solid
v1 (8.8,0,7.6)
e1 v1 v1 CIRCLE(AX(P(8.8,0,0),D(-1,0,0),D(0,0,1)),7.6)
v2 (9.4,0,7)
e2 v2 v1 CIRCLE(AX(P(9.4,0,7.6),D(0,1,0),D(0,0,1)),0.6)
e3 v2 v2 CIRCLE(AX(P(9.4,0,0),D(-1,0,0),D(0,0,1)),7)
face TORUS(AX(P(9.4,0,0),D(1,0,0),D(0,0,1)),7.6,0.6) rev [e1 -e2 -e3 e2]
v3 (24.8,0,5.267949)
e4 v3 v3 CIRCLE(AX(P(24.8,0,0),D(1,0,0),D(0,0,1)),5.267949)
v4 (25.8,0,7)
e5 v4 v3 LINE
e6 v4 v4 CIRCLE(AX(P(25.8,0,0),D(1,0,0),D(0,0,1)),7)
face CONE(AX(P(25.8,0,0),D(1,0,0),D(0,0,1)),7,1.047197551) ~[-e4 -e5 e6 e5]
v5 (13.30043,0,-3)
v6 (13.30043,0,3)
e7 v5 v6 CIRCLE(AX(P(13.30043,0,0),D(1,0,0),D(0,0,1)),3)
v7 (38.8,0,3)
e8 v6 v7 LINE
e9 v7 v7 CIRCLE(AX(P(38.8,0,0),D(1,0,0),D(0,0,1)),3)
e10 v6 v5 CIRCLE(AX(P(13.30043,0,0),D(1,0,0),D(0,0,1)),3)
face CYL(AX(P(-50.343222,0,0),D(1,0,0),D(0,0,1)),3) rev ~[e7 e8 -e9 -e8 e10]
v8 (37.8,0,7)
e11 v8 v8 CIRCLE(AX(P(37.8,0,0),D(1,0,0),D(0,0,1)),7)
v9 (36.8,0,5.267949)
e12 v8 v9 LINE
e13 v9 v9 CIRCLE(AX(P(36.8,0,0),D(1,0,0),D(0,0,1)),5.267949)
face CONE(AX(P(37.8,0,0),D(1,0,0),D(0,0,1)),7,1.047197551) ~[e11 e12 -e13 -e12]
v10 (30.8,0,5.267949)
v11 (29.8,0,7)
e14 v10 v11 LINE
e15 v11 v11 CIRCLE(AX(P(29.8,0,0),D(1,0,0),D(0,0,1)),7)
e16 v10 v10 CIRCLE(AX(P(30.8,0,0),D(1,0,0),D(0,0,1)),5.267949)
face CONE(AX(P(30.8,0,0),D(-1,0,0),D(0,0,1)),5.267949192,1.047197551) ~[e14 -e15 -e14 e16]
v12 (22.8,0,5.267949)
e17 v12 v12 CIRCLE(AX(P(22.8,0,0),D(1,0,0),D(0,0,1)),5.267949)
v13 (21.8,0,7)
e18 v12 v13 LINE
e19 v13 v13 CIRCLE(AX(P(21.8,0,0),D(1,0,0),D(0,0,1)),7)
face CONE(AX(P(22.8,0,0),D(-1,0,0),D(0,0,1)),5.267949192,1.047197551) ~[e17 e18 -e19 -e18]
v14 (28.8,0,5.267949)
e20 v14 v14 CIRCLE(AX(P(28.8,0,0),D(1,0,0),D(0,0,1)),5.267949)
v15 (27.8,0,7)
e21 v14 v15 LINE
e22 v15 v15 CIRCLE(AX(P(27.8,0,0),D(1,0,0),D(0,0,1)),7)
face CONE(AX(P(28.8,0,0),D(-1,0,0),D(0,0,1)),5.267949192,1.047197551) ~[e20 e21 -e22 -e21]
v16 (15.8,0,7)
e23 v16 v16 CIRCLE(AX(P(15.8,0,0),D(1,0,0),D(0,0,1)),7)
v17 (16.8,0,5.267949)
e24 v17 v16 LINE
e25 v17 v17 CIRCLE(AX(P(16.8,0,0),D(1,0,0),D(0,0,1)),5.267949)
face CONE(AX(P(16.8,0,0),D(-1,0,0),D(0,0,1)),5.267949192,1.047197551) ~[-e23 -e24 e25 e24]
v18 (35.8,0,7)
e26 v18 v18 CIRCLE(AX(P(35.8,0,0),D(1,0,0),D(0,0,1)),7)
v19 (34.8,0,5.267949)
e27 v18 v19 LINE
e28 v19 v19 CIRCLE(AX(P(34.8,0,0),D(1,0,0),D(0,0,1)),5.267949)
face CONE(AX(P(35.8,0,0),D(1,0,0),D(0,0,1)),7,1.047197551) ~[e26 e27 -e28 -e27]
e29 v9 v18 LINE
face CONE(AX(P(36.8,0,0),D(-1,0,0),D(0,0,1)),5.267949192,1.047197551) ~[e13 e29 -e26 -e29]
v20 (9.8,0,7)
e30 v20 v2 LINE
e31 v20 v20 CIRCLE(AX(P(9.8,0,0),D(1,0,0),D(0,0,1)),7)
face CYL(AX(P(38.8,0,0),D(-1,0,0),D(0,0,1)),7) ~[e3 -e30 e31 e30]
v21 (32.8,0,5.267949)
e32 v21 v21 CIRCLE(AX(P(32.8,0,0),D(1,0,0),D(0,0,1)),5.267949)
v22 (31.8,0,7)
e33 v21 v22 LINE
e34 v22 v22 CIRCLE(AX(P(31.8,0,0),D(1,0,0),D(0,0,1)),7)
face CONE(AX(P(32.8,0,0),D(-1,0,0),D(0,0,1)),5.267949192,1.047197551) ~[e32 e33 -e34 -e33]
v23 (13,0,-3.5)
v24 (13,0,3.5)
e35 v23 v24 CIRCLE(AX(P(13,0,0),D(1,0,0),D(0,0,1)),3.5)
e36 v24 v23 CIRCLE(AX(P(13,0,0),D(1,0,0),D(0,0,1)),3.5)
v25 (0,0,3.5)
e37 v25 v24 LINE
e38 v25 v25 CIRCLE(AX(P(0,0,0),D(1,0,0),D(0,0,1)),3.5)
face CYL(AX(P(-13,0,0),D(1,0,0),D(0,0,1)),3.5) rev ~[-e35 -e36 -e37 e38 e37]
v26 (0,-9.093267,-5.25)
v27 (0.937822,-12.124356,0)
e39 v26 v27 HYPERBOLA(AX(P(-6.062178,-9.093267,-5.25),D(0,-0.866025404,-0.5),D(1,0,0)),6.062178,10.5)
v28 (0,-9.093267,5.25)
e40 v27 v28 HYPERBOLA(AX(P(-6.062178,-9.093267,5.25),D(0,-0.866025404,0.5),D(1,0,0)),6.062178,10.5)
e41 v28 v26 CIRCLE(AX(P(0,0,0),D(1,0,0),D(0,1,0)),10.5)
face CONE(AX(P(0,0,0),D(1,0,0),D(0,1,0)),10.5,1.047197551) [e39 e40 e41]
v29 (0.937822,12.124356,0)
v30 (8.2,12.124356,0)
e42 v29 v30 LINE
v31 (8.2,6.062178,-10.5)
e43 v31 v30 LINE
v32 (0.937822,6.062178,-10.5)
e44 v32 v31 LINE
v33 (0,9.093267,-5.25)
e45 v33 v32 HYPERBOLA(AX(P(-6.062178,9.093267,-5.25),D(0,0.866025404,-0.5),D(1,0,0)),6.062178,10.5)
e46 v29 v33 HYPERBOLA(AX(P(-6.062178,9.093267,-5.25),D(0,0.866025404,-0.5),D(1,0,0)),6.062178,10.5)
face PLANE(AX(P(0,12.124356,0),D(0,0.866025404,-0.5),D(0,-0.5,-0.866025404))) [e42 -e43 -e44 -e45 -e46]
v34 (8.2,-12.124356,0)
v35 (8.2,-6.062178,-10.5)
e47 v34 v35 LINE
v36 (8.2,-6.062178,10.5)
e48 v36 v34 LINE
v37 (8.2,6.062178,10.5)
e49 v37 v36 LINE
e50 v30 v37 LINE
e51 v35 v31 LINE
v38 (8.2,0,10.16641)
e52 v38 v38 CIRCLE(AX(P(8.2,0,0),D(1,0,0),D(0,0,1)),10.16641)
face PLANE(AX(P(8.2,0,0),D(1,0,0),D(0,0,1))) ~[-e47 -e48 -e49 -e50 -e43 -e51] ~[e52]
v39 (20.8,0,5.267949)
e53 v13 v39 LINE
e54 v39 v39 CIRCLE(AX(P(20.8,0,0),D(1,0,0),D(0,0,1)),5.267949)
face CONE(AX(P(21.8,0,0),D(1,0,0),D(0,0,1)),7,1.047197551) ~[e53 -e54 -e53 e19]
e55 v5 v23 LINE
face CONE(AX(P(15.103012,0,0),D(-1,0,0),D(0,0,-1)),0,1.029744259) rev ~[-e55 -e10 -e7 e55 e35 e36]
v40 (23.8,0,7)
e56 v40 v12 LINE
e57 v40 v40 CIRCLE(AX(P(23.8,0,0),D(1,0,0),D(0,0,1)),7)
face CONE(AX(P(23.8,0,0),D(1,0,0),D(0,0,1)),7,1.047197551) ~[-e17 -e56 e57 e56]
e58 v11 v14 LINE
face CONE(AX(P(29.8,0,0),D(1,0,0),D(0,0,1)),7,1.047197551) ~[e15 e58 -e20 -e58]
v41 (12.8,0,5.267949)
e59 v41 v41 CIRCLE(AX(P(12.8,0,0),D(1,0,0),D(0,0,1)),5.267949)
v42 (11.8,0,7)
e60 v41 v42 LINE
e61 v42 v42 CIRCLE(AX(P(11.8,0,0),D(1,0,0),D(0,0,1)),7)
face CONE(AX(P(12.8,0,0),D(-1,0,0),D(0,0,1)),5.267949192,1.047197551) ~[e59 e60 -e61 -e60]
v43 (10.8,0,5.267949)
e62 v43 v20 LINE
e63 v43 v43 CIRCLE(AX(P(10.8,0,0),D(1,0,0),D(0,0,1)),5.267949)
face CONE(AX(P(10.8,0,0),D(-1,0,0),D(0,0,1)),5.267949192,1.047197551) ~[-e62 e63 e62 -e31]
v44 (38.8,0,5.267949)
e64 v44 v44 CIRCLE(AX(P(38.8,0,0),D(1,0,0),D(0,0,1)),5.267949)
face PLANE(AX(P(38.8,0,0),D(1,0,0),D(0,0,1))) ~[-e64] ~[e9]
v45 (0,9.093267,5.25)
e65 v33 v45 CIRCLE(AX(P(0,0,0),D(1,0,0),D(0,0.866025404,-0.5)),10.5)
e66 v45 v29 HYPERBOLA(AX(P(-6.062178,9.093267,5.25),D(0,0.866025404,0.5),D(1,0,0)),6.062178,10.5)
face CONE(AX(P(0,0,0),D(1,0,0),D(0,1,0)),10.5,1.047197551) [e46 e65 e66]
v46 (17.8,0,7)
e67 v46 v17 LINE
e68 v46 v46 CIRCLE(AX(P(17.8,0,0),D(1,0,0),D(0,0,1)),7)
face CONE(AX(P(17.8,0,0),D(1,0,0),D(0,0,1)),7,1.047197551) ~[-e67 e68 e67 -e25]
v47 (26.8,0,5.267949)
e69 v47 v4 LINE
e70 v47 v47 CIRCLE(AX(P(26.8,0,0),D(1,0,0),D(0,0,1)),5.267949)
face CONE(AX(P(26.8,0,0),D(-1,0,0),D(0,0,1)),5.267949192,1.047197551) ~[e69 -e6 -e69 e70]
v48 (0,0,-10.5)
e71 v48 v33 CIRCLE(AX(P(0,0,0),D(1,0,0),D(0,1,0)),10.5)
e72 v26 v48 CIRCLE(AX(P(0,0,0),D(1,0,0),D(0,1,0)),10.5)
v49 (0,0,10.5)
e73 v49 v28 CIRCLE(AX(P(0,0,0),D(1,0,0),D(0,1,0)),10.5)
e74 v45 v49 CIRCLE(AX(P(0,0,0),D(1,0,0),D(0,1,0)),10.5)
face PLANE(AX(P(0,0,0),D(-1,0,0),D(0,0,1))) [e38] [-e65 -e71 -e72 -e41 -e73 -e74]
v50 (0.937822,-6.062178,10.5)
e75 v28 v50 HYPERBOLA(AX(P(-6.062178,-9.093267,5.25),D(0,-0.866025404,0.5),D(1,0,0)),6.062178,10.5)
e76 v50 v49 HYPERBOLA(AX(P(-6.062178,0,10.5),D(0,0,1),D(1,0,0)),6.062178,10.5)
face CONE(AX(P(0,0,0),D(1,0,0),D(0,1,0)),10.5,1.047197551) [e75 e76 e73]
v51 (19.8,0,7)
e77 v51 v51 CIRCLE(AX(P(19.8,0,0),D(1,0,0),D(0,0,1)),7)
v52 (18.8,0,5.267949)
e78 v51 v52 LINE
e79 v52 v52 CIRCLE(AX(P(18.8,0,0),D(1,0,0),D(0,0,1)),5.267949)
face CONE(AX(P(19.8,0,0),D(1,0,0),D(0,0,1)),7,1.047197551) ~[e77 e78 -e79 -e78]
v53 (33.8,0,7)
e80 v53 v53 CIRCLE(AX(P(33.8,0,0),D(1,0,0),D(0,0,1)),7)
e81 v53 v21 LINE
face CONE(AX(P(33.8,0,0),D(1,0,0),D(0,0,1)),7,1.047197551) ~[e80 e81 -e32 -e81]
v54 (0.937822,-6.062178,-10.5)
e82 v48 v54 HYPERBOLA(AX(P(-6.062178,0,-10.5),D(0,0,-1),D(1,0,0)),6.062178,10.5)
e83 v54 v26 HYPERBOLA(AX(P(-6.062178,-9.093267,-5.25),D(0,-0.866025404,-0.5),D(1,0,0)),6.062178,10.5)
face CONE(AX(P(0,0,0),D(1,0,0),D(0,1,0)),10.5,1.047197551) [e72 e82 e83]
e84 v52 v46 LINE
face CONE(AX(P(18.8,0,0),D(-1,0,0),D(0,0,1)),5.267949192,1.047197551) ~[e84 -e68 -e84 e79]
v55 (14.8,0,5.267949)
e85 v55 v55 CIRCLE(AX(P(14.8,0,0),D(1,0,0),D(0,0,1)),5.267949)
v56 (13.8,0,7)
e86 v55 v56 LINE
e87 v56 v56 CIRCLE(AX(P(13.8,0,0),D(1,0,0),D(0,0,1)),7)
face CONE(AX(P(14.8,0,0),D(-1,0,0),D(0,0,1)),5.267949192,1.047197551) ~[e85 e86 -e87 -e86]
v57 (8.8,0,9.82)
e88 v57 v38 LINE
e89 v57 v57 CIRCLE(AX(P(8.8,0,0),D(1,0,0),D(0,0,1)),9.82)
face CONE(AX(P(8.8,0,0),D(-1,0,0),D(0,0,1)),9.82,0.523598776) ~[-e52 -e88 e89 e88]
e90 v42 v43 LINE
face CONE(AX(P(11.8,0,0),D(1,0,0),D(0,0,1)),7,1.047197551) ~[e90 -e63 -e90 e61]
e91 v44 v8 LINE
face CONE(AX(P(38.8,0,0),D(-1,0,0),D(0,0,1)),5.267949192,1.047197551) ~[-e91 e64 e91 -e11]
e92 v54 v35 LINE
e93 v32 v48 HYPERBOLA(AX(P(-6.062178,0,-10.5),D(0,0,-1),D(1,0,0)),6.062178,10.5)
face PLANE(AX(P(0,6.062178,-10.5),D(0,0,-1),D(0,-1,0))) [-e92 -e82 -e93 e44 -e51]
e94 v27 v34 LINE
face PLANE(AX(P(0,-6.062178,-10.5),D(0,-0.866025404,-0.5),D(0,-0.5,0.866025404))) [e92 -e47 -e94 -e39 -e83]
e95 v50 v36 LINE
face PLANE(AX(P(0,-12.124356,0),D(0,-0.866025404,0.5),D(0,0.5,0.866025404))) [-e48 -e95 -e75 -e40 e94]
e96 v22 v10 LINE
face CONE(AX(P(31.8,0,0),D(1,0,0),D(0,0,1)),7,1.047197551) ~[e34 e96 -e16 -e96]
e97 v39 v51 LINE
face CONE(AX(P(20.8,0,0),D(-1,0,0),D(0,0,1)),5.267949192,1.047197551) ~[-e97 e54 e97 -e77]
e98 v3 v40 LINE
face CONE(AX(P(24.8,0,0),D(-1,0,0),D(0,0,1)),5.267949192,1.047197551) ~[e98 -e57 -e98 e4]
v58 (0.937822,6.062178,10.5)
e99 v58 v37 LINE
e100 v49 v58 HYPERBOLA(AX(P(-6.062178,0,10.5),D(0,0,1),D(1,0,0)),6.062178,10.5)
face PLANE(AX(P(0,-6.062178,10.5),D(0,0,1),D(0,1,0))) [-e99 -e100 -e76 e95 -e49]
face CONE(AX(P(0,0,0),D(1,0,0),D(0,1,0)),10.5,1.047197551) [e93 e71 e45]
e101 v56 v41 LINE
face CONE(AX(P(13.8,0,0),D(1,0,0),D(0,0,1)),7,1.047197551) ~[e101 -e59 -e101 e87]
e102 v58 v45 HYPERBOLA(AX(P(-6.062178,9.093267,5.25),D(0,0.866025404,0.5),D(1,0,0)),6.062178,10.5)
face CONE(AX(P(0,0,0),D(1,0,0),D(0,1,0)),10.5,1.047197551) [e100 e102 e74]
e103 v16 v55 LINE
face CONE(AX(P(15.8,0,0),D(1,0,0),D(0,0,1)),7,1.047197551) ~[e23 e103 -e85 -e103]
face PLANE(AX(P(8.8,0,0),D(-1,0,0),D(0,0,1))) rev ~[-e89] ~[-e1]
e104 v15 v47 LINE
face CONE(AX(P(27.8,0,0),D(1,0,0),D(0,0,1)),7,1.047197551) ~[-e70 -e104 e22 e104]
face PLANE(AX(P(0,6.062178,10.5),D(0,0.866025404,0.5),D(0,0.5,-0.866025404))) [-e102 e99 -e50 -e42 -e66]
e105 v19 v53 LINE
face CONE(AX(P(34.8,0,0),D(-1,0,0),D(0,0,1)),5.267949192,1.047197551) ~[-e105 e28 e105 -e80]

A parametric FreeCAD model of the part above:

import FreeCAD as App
import Part
import Sketcher
from FreeCAD import Vector
Q = App.Units.Quantity


def edges_at(feature, points):
    """Names of the edges that pass closest to the given points."""
    edges = feature.Shape.Edges
    near = lambda p: min(range(len(edges)), key=lambda i: edges[i].distToShape(Part.Vertex(*p))[0])
    return sorted({f"Edge{near(p) + 1}" for p in points})


def add_polygon(sketch, points):
    """Adds a closed chain of lines whose ends are joined by coincident constraints."""
    first, n = sketch.GeometryCount, len(points)
    for a, b in zip(points, points[1:] + points[:1]):
        sketch.addGeometry(Part.LineSegment(App.Vector(*a, 0), App.Vector(*b, 0)), False)
    for i in range(n):
        sketch.addConstraint(Sketcher.Constraint("Coincident", first + i, 2, first + (i + 1) % n, 1))

doc = App.newDocument("Part")
body = doc.addObject("PartDesign::Body", "Body")

sketch1 = doc.addObject("Sketcher::SketchObject", "Sketch")
body.addObject(sketch1)
sketch1.AttachmentSupport = (doc.YZ_Plane, [""])
sketch1.MapMode = "FlatFace"
add_polygon(sketch1, [(-6.062178, -10.5), (6.062178, -10.5), (12.124356, 0), (6.062178, 10.5), (-6.062178, 10.5), (-12.124356, 0)])
sketch1.addConstraint([
    Sketcher.Constraint("Horizontal", 0),
    Sketcher.Constraint("Horizontal", 3),
    Sketcher.Constraint("Symmetric", 0, 2, 3, 2, -1, 1),
    Sketcher.Constraint("Symmetric", 1, 2, 4, 2, -1, 1),
    Sketcher.Constraint("PointOnObject", 1, 2, -1),
    Sketcher.Constraint("Parallel", 2, 5),
    Sketcher.Constraint("Vertical", 0, 2, 2, 2),
    Sketcher.Constraint("Angle", 1, Q("60 deg")),
    Sketcher.Constraint("DistanceY", 0, 2, 2, 2, 21.0),
    Sketcher.Constraint("DistanceX", 0, 1, 0, 2, 12.124356),
])
pad1 = doc.addObject("PartDesign::Pad", "Pad")
body.addObject(pad1)
pad1.Profile = sketch1
pad1.Length = 8.8

sketch2 = doc.addObject("Sketcher::SketchObject", "Sketch001")
body.addObject(sketch2)
sketch2.AttachmentSupport = (doc.XY_Plane, [""])
sketch2.MapMode = "FlatFace"
add_polygon(sketch2, [(0, 0), (38.8, 0), (38.8, 7), (0, 7)])
sketch2.addConstraint([
    Sketcher.Constraint("Horizontal", 0),
    Sketcher.Constraint("Vertical", 1),
    Sketcher.Constraint("Horizontal", 2),
    Sketcher.Constraint("Vertical", 3),
    Sketcher.Constraint("Coincident", 3, 2, -1, 1),
    Sketcher.Constraint("DistanceY", 1, 1, 1, 2, 7.0),
    Sketcher.Constraint("DistanceX", 0, 1, 0, 2, 38.8),
])
revolution = doc.addObject("PartDesign::Revolution", "Revolution")
body.addObject(revolution)
revolution.Profile = sketch2
revolution.ReferenceAxis = (sketch2, ["H_Axis"])
revolution.Angle = 360

sketch3 = doc.addObject("Sketcher::SketchObject", "Sketch002")
body.addObject(sketch3)
sketch3.AttachmentSupport = (doc.XY_Plane, [""])
sketch3.MapMode = "FlatFace"
add_polygon(sketch3, [(0, 10.5), (3.824574, 17.124356), (3.824574, 22.124356), (-10, 22.124356), (-10, 10.5)])
sketch3.addConstraint([
    Sketcher.Constraint("Vertical", 1),
    Sketcher.Constraint("Horizontal", 2),
    Sketcher.Constraint("Vertical", 3),
    Sketcher.Constraint("Horizontal", 4),
    Sketcher.Constraint("PointOnObject", 4, 2, -2),
    Sketcher.Constraint("DistanceX", 4, 1, 4, 2, 10.0),
    Sketcher.Constraint("DistanceY", 1, 1, 1, 2, 5.0),
    Sketcher.Constraint("Angle", 0, Q("60 deg")),
    Sketcher.Constraint("DistanceY", -1, 1, 3, 2, 10.5),
    Sketcher.Constraint("DistanceX", 2, 2, 2, 1, 13.824574),
])
groove = doc.addObject("PartDesign::Groove", "Groove")
body.addObject(groove)
groove.Profile = sketch3
groove.ReferenceAxis = (sketch3, ["H_Axis"])
groove.Angle = 360

sketch4 = doc.addObject("Sketcher::SketchObject", "Sketch003")
body.addObject(sketch4)
sketch4.AttachmentSupport = (doc.XY_Plane, [""])
sketch4.MapMode = "FlatFace"
add_polygon(sketch4, [(8.2, 10.16641), (8.8, 9.82), (8.8, 12.124356), (8.2, 12.124356)])
sketch4.addConstraint([
    Sketcher.Constraint("Vertical", 1),
    Sketcher.Constraint("Horizontal", 2),
    Sketcher.Constraint("Vertical", 3),
    Sketcher.Constraint("Angle", 0, Q("-30 deg")),
    Sketcher.Constraint("DistanceX", 2, 2, 2, 1, 0.6),
    Sketcher.Constraint("DistanceX", -1, 1, 0, 2, 8.8),
    Sketcher.Constraint("DistanceY", -1, 1, 0, 2, 9.82),
    Sketcher.Constraint("DistanceY", 1, 1, 1, 2, 2.304356),
])
groove2 = doc.addObject("PartDesign::Groove", "Groove001")
body.addObject(groove2)
groove2.Profile = sketch4
groove2.ReferenceAxis = (sketch4, ["H_Axis"])
groove2.Angle = 360
doc.recompute()

fillet = doc.addObject("PartDesign::Fillet", "Fillet")
body.addObject(fillet)
fillet.Base = (groove2, edges_at(groove2, [(8.8, 0, -7)]))
fillet.Radius = 0.6

sketch5 = doc.addObject("Sketcher::SketchObject", "Sketch004")
body.addObject(sketch5)
sketch5.AttachmentSupport = (doc.XY_Plane, [""])
sketch5.MapMode = "FlatFace"
add_polygon(sketch5, [(39.8, 7), (37.8, 7), (38.8, 5.267949)])
sketch5.addConstraint([
    Sketcher.Constraint("Horizontal", 0),
    Sketcher.Constraint("Equal", 1, 2),
    Sketcher.Constraint("DistanceX", 0, 2, 0, 1, 2.0),
    Sketcher.Constraint("Angle", 1, Q("-60 deg")),
    Sketcher.Constraint("DistanceY", -1, 1, 0, 2, 7.0),
    Sketcher.Constraint("DistanceX", -1, 1, 0, 2, 37.8),
])
groove3 = doc.addObject("PartDesign::Groove", "Groove002")
body.addObject(groove3)
groove3.Profile = sketch5
groove3.ReferenceAxis = (sketch5, ["H_Axis"])
groove3.Angle = 360
doc.recompute()

linearpattern = doc.addObject("PartDesign::LinearPattern", "LinearPattern")
body.addObject(linearpattern)
linearpattern.Originals = [groove3]
linearpattern.Direction = (doc.X_Axis, [""])
linearpattern.Mode = "offset"
linearpattern.Offset = 2
linearpattern.Occurrences = 15
linearpattern.Reversed = True
body.Tip = linearpattern

sketch6 = doc.addObject("Sketcher::SketchObject", "Sketch005")
body.addObject(sketch6)
sketch6.AttachmentSupport = (doc.YZ_Plane, [""])
sketch6.MapMode = "FlatFace"
sketch6.addGeometry(Part.Circle(Vector(0, 0, 0), Vector(0, 0, 1), 3), False)
sketch6.addConstraint([
    Sketcher.Constraint("Coincident", 0, 3, -1, 1),
    Sketcher.Constraint("Diameter", 0, 6.0),
])
doc.recompute()
hole = doc.addObject("PartDesign::Hole", "Hole")
body.addObject(hole)
hole.Profile = sketch6
hole.ThreadType = "None"
hole.Diameter = 6
hole.DepthType = "ThroughAll"
hole.Reversed = True

sketch7 = doc.addObject("Sketcher::SketchObject", "Sketch006")
body.addObject(sketch7)
sketch7.AttachmentSupport = (doc.YZ_Plane, [""])
sketch7.MapMode = "FlatFace"
sketch7.addGeometry(Part.Circle(Vector(0, 0, 0), Vector(0, 0, 1), 3.5), False)
sketch7.addConstraint([
    Sketcher.Constraint("Coincident", 0, 3, -1, 1),
    Sketcher.Constraint("Diameter", 0, 7.0),
])
doc.recompute()
hole2 = doc.addObject("PartDesign::Hole", "Hole001")
body.addObject(hole2)
hole2.Profile = sketch7
hole2.ThreadType = "None"
hole2.Diameter = 7
hole2.DepthType = "Dimension"
hole2.Depth = 13
hole2.DrillPoint = "Angled"
hole2.DrillPointAngle = 118
hole2.Reversed = True

doc.recompute()
